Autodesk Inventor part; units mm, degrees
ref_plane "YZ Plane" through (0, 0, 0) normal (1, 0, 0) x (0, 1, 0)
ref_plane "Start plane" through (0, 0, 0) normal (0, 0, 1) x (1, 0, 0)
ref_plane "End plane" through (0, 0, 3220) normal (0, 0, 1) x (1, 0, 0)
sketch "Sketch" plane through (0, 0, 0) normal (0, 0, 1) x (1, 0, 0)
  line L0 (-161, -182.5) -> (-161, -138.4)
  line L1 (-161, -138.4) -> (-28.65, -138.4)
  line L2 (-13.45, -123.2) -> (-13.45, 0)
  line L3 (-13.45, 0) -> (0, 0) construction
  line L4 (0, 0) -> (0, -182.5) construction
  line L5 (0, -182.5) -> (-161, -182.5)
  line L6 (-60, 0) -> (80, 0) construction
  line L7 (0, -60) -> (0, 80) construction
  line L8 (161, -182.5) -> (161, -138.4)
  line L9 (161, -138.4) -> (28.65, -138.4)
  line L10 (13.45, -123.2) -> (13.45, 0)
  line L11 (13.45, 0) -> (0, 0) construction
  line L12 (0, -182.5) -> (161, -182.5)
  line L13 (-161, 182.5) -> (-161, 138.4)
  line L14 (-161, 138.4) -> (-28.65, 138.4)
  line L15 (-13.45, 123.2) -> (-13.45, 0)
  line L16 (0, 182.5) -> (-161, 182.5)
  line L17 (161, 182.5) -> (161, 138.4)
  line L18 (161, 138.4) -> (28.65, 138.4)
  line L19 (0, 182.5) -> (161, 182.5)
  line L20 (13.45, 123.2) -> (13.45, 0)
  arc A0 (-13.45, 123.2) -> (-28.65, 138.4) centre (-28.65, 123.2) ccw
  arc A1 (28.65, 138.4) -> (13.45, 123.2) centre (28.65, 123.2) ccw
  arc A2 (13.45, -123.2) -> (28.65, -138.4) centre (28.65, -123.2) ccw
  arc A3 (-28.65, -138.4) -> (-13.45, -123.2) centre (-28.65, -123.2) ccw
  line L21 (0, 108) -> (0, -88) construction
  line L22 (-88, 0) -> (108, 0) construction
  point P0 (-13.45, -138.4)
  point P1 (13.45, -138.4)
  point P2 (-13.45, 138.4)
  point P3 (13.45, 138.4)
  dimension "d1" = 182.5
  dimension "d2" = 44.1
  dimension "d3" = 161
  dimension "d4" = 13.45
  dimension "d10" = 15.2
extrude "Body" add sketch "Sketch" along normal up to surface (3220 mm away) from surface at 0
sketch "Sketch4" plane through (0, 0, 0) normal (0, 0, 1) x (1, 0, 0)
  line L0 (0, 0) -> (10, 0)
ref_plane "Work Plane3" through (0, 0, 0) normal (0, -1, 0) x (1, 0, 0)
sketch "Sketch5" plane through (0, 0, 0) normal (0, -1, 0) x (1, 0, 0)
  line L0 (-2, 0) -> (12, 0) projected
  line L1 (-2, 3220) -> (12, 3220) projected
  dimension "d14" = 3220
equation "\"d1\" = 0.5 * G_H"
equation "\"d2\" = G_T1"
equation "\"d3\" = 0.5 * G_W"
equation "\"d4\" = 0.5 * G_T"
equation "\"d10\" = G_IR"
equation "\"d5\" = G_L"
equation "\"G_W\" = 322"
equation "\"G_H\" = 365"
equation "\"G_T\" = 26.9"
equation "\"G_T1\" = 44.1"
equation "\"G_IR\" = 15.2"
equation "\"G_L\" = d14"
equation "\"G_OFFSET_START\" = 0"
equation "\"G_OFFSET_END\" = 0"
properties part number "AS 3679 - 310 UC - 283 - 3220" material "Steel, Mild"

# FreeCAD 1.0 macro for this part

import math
import FreeCAD as App
import Part
import Sketcher
from FreeCAD import Vector

doc = App.newDocument("Part")
body = doc.addObject("PartDesign::Body", "Body")

sketch1 = body.newObject("Sketcher::SketchObject", "Sketch")
sketch1.AttachmentSupport = (doc.getObject("XY_Plane"), [""])
sketch1.MapMode = "FlatFace"
sketch1.addGeometry([
    Part.LineSegment(Vector(-161, -138.4, 0), Vector(-161, -182.5, 0)),
    Part.LineSegment(Vector(-161, -182.5, 0), Vector(161, -182.5, 0)),
    Part.LineSegment(Vector(161, -182.5, 0), Vector(161, -138.4, 0)),
    Part.LineSegment(Vector(161, -138.4, 0), Vector(28.65, -138.4, 0)),
    Part.ArcOfCircle(Part.Circle(Vector(28.65, -123.2, 0), Vector(0, 0, 1), 15.2), math.radians(180), math.radians(270)),
    Part.LineSegment(Vector(13.45, -123.2, 0), Vector(13.45, 123.2, 0)),
    Part.ArcOfCircle(Part.Circle(Vector(28.65, 123.2, 0), Vector(0, 0, 1), 15.2), math.radians(90), math.radians(180)),
    Part.LineSegment(Vector(28.65, 138.4, 0), Vector(161, 138.4, 0)),
    Part.LineSegment(Vector(161, 138.4, 0), Vector(161, 182.5, 0)),
    Part.LineSegment(Vector(161, 182.5, 0), Vector(-161, 182.5, 0)),
    Part.LineSegment(Vector(-161, 182.5, 0), Vector(-161, 138.4, 0)),
    Part.LineSegment(Vector(-161, 138.4, 0), Vector(-28.65, 138.4, 0)),
    Part.ArcOfCircle(Part.Circle(Vector(-28.65, 123.2, 0), Vector(0, 0, 1), 15.2), math.radians(0), math.radians(90)),
    Part.LineSegment(Vector(-13.45, 123.2, 0), Vector(-13.45, -123.2, 0)),
    Part.ArcOfCircle(Part.Circle(Vector(-28.65, -123.2, 0), Vector(0, 0, 1), 15.2), math.radians(-90), math.radians(0)),
    Part.LineSegment(Vector(-28.65, -138.4, 0), Vector(-161, -138.4, 0)),
], False)
sketch1.addConstraint([
    Sketcher.Constraint("Coincident", 0, 2, 1, 1),
    Sketcher.Constraint("Coincident", 1, 2, 2, 1),
    Sketcher.Constraint("Coincident", 2, 2, 3, 1),
    Sketcher.Constraint("Tangent", 3, 2, 4, 2),
    Sketcher.Constraint("Tangent", 4, 1, 5, 1),
    Sketcher.Constraint("Tangent", 5, 2, 6, 2),
    Sketcher.Constraint("Tangent", 6, 1, 7, 1),
    Sketcher.Constraint("Coincident", 7, 2, 8, 1),
    Sketcher.Constraint("Coincident", 8, 2, 9, 1),
    Sketcher.Constraint("Coincident", 9, 2, 10, 1),
    Sketcher.Constraint("Coincident", 10, 2, 11, 1),
    Sketcher.Constraint("Tangent", 11, 2, 12, 2),
    Sketcher.Constraint("Tangent", 12, 1, 13, 1),
    Sketcher.Constraint("Tangent", 13, 2, 14, 2),
    Sketcher.Constraint("Tangent", 14, 1, 15, 1),
    Sketcher.Constraint("Coincident", 15, 2, 0, 1),
    Sketcher.Constraint("Vertical", 0),
    Sketcher.Constraint("Horizontal", 1),
    Sketcher.Constraint("Vertical", 2),
    Sketcher.Constraint("Horizontal", 3),
    Sketcher.Constraint("Vertical", 5),
    Sketcher.Constraint("Horizontal", 7),
    Sketcher.Constraint("Vertical", 8),
    Sketcher.Constraint("Horizontal", 9),
    Sketcher.Constraint("Vertical", 10),
    Sketcher.Constraint("Horizontal", 11),
    Sketcher.Constraint("Vertical", 13),
    Sketcher.Constraint("Horizontal", 15),
    Sketcher.Constraint("Equal", 4, 6),
    Sketcher.Constraint("Equal", 6, 12),
    Sketcher.Constraint("Equal", 12, 14),
    Sketcher.Constraint("Symmetric", 4, 3, 12, 3, -1, 1),
    Sketcher.Constraint("Symmetric", 0, 2, 8, 2, -1, 1),
    Sketcher.Constraint("Symmetric", 7, 2, 10, 2, -2),
    Sketcher.Constraint("Symmetric", 2, 2, 15, 2, -2),
    Sketcher.Constraint("Radius", 4, 15.2),
    Sketcher.Constraint("DistanceY", 0, 2, 0, 1, 44.1),
    Sketcher.Constraint("DistanceX", 0, 2, -1, 1, 161.0),
    Sketcher.Constraint("DistanceY", 0, 2, -1, 1, 182.5),
    Sketcher.Constraint("DistanceX", -1, 1, 4, 1, 13.45),
])
pad1 = body.newObject("PartDesign::Pad", "Pad")
pad1.Profile = sketch1
pad1.Length = 3220

doc.recompute()
